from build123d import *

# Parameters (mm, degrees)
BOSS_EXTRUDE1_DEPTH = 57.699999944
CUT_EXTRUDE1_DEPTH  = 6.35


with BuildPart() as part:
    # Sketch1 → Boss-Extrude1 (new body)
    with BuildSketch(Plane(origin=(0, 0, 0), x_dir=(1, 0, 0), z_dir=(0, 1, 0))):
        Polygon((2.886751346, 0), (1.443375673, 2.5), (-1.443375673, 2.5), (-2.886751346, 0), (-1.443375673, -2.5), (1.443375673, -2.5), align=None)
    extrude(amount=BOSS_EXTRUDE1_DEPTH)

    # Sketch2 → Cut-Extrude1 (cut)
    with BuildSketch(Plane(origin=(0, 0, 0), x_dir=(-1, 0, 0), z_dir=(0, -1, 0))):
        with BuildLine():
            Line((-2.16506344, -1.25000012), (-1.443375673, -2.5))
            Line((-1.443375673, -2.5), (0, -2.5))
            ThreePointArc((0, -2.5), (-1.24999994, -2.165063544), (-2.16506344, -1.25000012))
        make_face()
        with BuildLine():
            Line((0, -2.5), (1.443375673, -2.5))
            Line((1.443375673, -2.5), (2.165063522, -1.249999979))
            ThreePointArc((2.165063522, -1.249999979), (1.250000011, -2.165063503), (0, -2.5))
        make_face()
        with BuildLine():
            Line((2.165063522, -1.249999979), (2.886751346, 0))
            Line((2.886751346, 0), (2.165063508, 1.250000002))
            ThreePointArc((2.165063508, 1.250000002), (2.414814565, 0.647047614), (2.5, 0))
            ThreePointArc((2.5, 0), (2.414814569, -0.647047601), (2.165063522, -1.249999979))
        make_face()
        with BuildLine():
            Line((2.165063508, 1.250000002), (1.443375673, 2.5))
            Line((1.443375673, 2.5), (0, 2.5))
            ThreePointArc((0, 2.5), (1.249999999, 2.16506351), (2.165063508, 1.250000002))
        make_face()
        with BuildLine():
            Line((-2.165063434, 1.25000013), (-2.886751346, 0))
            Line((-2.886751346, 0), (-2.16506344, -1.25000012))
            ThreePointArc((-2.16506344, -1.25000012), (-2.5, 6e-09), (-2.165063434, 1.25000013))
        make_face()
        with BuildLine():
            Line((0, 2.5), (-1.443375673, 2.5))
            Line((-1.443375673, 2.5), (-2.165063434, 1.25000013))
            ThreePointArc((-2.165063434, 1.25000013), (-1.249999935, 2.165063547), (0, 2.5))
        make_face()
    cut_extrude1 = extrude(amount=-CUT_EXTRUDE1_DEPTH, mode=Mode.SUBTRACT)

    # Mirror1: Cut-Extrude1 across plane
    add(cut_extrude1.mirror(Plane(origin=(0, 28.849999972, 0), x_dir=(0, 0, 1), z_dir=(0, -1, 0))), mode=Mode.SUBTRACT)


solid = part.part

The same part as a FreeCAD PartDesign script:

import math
import FreeCAD as App
import Part
import Sketcher
Q = App.Units.Quantity


def add_polygon(sketch, points):
    """Adds a closed chain of lines whose ends are joined by coincident constraints."""
    first, n = sketch.GeometryCount, len(points)
    for a, b in zip(points, points[1:] + points[:1]):
        sketch.addGeometry(Part.LineSegment(App.Vector(*a, 0), App.Vector(*b, 0)), False)
    for i in range(n):
        sketch.addConstraint(Sketcher.Constraint("Coincident", first + i, 2, first + (i + 1) % n, 1))

doc = App.newDocument("Part")
params = doc.addObject("Spreadsheet::Sheet", "Params")
for row, (alias, value) in enumerate([
    ("pad1_length", "57.7 mm"),
    ("sketch2_radius", "2.5 mm"),
    ("pocket1_length", "6.35 mm"),
], start=1):
    params.set(f"A{row}", alias)
    params.set(f"B{row}", "=" + value)
    params.setAlias(f"B{row}", alias)

body = doc.addObject("PartDesign::Body", "Body")

# Sketch on XZ plane
sketch1 = body.newObject("Sketcher::SketchObject", "Sketch")
sketch1.AttachmentSupport = (doc.getObject("XZ_Plane"), [""])
sketch1.MapMode = "FlatFace"
add_polygon(sketch1, [(2.9, 0), (1.4, -2.5), (-1.4, -2.5), (-2.9, 0), (-1.4, 2.5), (1.4, 2.5)])  # lines 0-5
sketch1.addConstraint([
    Sketcher.Constraint("Horizontal", 1),
    Sketcher.Constraint("Horizontal", 4),
    Sketcher.Constraint("Symmetric", 0, 2, 3, 2, -1, 1),
    Sketcher.Constraint("Symmetric", 2, 2, 5, 2, -1, 1),
    Sketcher.Constraint("PointOnObject", 2, 2, -1),
    Sketcher.Constraint("Parallel", 2, 5),
    Sketcher.Constraint("Vertical", 1, 2, 3, 2),
    Sketcher.Constraint("Angle", 0, Q("-120 deg")),
    Sketcher.Constraint("DistanceY", 1, 2, 3, 2, Q("5 mm")),
    Sketcher.Constraint("DistanceX", 1, 2, 1, 1, Q("2.886751 mm")),
])
pad1 = body.newObject("PartDesign::Pad", "Pad")
pad1.Profile = sketch1
pad1.setExpression("Length", "Params.pad1_length")
pad1.Reversed = True

# Sketch on XZ plane
sketch2 = body.newObject("Sketcher::SketchObject", "Sketch001")
sketch2.AttachmentSupport = (doc.getObject("XZ_Plane"), [""])
sketch2.MapMode = "FlatFace"
sketch2.addGeometry([
    Part.LineSegment(App.Vector(2.2, 1.3, 0), App.Vector(1.4, 2.5, 0)),  # 0
    Part.LineSegment(App.Vector(1.4, 2.5, 0), App.Vector(0, 2.5, 0)),  # 1
    Part.ArcOfCircle(Part.Circle(App.Vector(0, 0, 0), App.Vector(0, 0, 1), 2.5), math.radians(30), math.radians(90)),  # 2
    Part.LineSegment(App.Vector(0, 2.5, 0), App.Vector(-1.4, 2.5, 0)),  # 3
    Part.LineSegment(App.Vector(-1.4, 2.5, 0), App.Vector(-2.2, 1.2, 0)),  # 4
    Part.ArcOfCircle(Part.Circle(App.Vector(0, 0, 0), App.Vector(0, 0, 1), 2.5), math.radians(90), math.radians(150)),  # 5
    Part.LineSegment(App.Vector(-2.2, 1.2, 0), App.Vector(-2.9, 0, 0)),  # 6
    Part.LineSegment(App.Vector(-2.9, 0, 0), App.Vector(-2.2, -1.3, 0)),  # 7
    Part.ArcOfCircle(Part.Circle(App.Vector(0, 0, 0), App.Vector(0, 0, 1), 2.5), math.radians(-180), math.radians(-150)),  # 8
    Part.ArcOfCircle(Part.Circle(App.Vector(0, 0, 0), App.Vector(0, 0, 1), 2.5), math.radians(150), math.radians(180)),  # 9
    Part.LineSegment(App.Vector(-2.2, -1.3, 0), App.Vector(-1.4, -2.5, 0)),  # 10
    Part.LineSegment(App.Vector(-1.4, -2.5, 0), App.Vector(0, -2.5, 0)),  # 11
    Part.ArcOfCircle(Part.Circle(App.Vector(0, 0, 0), App.Vector(0, 0, 1), 2.5), math.radians(-150), math.radians(-90)),  # 12
    Part.LineSegment(App.Vector(2.2, -1.3, 0), App.Vector(2.9, 0, 0)),  # 13
    Part.LineSegment(App.Vector(2.9, 0, 0), App.Vector(2.2, 1.3, 0)),  # 14
    Part.ArcOfCircle(Part.Circle(App.Vector(0, 0, 0), App.Vector(0, 0, 1), 2.5), math.radians(-30), math.radians(30)),  # 15
    Part.LineSegment(App.Vector(0, -2.5, 0), App.Vector(1.4, -2.5, 0)),  # 16
    Part.LineSegment(App.Vector(1.4, -2.5, 0), App.Vector(2.2, -1.3, 0)),  # 17
    Part.ArcOfCircle(Part.Circle(App.Vector(0, 0, 0), App.Vector(0, 0, 1), 2.5), math.radians(-90), math.radians(-30)),  # 18
], False)
sketch2.addConstraint([
    Sketcher.Constraint("Coincident", 0, 2, 1, 1),
    Sketcher.Constraint("Tangent", 1, 2, 2, 2),
    Sketcher.Constraint("Tangent", 2, 1, 0, 1),
    Sketcher.Constraint("Coincident", 3, 2, 4, 1),
    Sketcher.Constraint("Tangent", 4, 2, 5, 2),
    Sketcher.Constraint("Tangent", 5, 1, 3, 1),
    Sketcher.Constraint("Coincident", 6, 2, 7, 1),
    Sketcher.Constraint("Tangent", 7, 2, 8, 2),
    Sketcher.Constraint("Tangent", 8, 1, 9, 2),
    Sketcher.Constraint("Tangent", 9, 1, 6, 1),
    Sketcher.Constraint("Coincident", 10, 2, 11, 1),
    Sketcher.Constraint("Tangent", 11, 2, 12, 2),
    Sketcher.Constraint("Tangent", 12, 1, 10, 1),
    Sketcher.Constraint("Coincident", 13, 2, 14, 1),
    Sketcher.Constraint("Tangent", 14, 2, 15, 2),
    Sketcher.Constraint("Tangent", 15, 1, 13, 1),
    Sketcher.Constraint("Coincident", 16, 2, 17, 1),
    Sketcher.Constraint("Tangent", 17, 2, 18, 2),
    Sketcher.Constraint("Tangent", 18, 1, 16, 1),
    Sketcher.Constraint("Horizontal", 1),
    Sketcher.Constraint("Horizontal", 3),
    Sketcher.Constraint("Horizontal", 11),
    Sketcher.Constraint("Horizontal", 16),
    Sketcher.Constraint("Coincident", 2, 3, -1, 1),
    Sketcher.Constraint("Coincident", 5, 3, -1, 1),
    Sketcher.Constraint("Coincident", 8, 3, -1, 1),
    Sketcher.Constraint("Coincident", 12, 3, -1, 1),
    Sketcher.Constraint("Coincident", 15, 3, -1, 1),
    Sketcher.Constraint("Coincident", 18, 3, -1, 1),
    Sketcher.Constraint("Coincident", 9, 1, 4, 2),
    Sketcher.Constraint("Coincident", 12, 1, 7, 2),
    Sketcher.Constraint("Coincident", 14, 2, 2, 1),
    Sketcher.Constraint("Coincident", 17, 2, 15, 1),
    Sketcher.Constraint("Equal", 2, 5),
    Sketcher.Constraint("Equal", 5, 8),
    Sketcher.Constraint("Symmetric", 6, 2, 13, 2, -1, 1),
    Sketcher.Constraint("PointOnObject", 6, 2, -1),
    Sketcher.Constraint("PointOnObject", 8, 1, -1),
    Sketcher.Constraint("Equal", 4, 6),
    Sketcher.Constraint("Radius", 2, Q("2.5 mm")),
])
sketch2.setExpression("Constraints[39]", "Params.sketch2_radius")
pocket1 = body.newObject("PartDesign::Pocket", "Pocket")
pocket1.Profile = sketch2
pocket1.setExpression("Length", "Params.pocket1_length")
doc.recompute()

datumplane = body.newObject("PartDesign::Plane", "DatumPlane")
datumplane.AttachmentSupport = (doc.getObject("XZ_Plane"), [""])
datumplane.MapMode = "FlatFace"
datumplane.AttachmentOffset = App.Placement(App.Vector(0, 0, -28.85), App.Rotation())
mirrored = body.newObject("PartDesign::Mirrored", "Mirrored")
mirrored.Originals = [pocket1]
mirrored.MirrorPlane = (datumplane, [""])
body.Tip = mirrored

doc.recompute()
